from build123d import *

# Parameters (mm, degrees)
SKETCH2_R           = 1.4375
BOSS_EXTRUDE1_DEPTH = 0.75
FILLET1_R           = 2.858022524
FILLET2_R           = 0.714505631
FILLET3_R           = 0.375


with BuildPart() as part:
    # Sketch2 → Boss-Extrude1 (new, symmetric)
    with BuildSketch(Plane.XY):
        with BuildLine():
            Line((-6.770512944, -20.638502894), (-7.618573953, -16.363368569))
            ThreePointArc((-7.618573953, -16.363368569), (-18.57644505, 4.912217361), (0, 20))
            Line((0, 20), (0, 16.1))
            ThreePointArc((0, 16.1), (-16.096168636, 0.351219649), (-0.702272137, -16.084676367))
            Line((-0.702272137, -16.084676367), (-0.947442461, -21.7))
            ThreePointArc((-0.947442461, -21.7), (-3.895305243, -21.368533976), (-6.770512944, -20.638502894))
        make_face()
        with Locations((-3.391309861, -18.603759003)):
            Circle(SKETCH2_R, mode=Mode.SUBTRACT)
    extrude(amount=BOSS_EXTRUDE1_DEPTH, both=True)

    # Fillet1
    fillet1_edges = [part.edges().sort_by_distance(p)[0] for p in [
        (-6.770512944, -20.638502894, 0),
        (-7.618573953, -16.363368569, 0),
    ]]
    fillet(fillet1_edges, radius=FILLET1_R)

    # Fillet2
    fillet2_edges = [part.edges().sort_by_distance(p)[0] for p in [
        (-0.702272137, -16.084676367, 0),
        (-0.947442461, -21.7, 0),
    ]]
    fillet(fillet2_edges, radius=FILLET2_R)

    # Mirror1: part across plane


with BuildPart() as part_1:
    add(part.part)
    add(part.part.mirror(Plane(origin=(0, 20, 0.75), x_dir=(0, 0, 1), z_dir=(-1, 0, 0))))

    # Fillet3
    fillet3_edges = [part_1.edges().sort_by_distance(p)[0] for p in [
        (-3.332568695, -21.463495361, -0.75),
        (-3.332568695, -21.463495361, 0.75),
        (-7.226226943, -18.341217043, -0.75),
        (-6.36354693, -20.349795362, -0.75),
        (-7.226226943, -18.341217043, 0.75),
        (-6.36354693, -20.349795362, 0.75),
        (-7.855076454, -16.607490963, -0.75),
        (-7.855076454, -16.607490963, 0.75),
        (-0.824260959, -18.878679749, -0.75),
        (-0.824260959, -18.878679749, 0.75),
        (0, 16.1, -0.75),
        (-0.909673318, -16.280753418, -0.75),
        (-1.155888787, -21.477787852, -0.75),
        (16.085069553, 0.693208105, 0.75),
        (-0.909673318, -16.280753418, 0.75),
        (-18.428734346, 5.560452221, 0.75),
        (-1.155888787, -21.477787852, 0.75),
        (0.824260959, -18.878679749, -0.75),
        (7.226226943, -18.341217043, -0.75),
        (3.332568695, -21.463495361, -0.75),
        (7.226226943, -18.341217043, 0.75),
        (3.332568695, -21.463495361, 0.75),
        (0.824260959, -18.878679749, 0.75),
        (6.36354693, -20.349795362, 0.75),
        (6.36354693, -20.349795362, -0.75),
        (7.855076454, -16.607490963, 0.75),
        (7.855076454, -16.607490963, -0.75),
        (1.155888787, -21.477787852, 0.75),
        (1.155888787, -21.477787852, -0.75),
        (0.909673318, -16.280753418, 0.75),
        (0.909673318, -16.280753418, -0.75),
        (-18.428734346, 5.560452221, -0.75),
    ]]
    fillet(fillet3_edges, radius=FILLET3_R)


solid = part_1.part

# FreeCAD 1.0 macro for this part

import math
import FreeCAD as App
import Part
import Sketcher
from FreeCAD import Vector
Q = App.Units.Quantity


def edges_at(feature, points):
    """Names of the edges that pass closest to the given points."""
    edges = feature.Shape.Edges
    near = lambda p: min(range(len(edges)), key=lambda i: edges[i].distToShape(Part.Vertex(*p))[0])
    return sorted({f"Edge{near(p) + 1}" for p in points})

doc = App.newDocument("Part")
body = doc.addObject("PartDesign::Body", "Body")

# Sketch on XY plane
sketch1 = body.newObject("Sketcher::SketchObject", "Sketch")
sketch1.AttachmentSupport = (doc.getObject("XY_Plane"), [""])
sketch1.MapMode = "FlatFace"
sketch1.addGeometry(Part.LineSegment(Vector(-7.6, -16.4, 0), Vector(-6.8, -20.6, 0)), False)
sketch1.addGeometry(Part.ArcOfCircle(Part.Circle(Vector(0, 0, 0), Vector(0, 0, 1), 21.7), math.radians(-108.16), math.radians(-92.5)), False)
sketch1.addGeometry(Part.LineSegment(Vector(-0.9, -21.7, 0), Vector(-0.7, -16.1, 0)), False)
sketch1.addGeometry(Part.ArcOfCircle(Part.Circle(Vector(0, 0, 0), Vector(0, 0, 1), 16.1), math.radians(90), math.radians(267)), False)
sketch1.addGeometry(Part.LineSegment(Vector(0, 16.1, 0), Vector(0, 20, 0)), False)
sketch1.addGeometry(Part.ArcOfCircle(Part.Circle(Vector(0, 1, 0), Vector(0, 0, 1), 19), math.radians(90), math.radians(246)), False)
sketch1.addGeometry(Part.Circle(Vector(-3.4, -18.6, 0), Vector(0, 0, 1), 1.4), False)
sketch1.addConstraint(Sketcher.Constraint("Coincident", 0, 2, 1, 1))
sketch1.addConstraint(Sketcher.Constraint("Coincident", 1, 2, 2, 1))
sketch1.addConstraint(Sketcher.Constraint("Coincident", 2, 2, 3, 2))
sketch1.addConstraint(Sketcher.Constraint("Coincident", 3, 1, 4, 1))
sketch1.addConstraint(Sketcher.Constraint("Coincident", 4, 2, 5, 1))
sketch1.addConstraint(Sketcher.Constraint("Coincident", 5, 2, 0, 1))
sketch1.addConstraint(Sketcher.Constraint("Vertical", 4))
sketch1.addConstraint(Sketcher.Constraint("Coincident", 1, 3, -1, 1))
sketch1.addConstraint(Sketcher.Constraint("Coincident", 3, 3, -1, 1))
sketch1.addConstraint(Sketcher.Constraint("PointOnObject", 5, 3, -2))
sketch1.addConstraint(Sketcher.Constraint("PointOnObject", 3, 1, -2))
sketch1.addConstraint(Sketcher.Constraint("Radius", 3, Q("16.1 mm")))
sketch1.addConstraint(Sketcher.Constraint("Diameter", 6, Q("2.875 mm")))
sketch1.addConstraint(Sketcher.Constraint("DistanceY", 4, 1, 4, 2, Q("3.9 mm")))
sketch1.addConstraint(Sketcher.Constraint("Angle", 2, Q("87.5 deg")))
sketch1.addConstraint(Sketcher.Constraint("DistanceY", 1, 2, -1, 1, Q("21.7 mm")))
sketch1.addConstraint(Sketcher.Constraint("Radius", 1, Q("21.720673 mm")))
sketch1.addConstraint(Sketcher.Constraint("Radius", 5, Q("18.979777 mm")))
sketch1.addConstraint(Sketcher.Constraint("DistanceX", 5, 2, 2, 2, Q("6.916302 mm")))
sketch1.addConstraint(Sketcher.Constraint("DistanceX", 6, 3, -1, 1, Q("3.39131 mm")))
sketch1.addConstraint(Sketcher.Constraint("DistanceY", 6, 3, -1, 1, Q("18.603759 mm")))
sketch1.addConstraint(Sketcher.Constraint("DistanceX", 0, 2, 1, 2, Q("5.82307 mm")))
pad1 = body.newObject("PartDesign::Pad", "Pad")
pad1.Profile = sketch1
pad1.Length = 1.5
pad1.Midplane = True
doc.recompute()

fillet = body.newObject("PartDesign::Fillet", "Fillet")
fillet.Base = (pad1, edges_at(pad1, [(-6.771, -20.639, 0), (-7.619, -16.363, 0)]))
fillet.Radius = 2.858023
doc.recompute()

fillet2 = body.newObject("PartDesign::Fillet", "Fillet001")
fillet2.Base = (fillet, edges_at(fillet, [(-0.702, -16.085, 0), (-0.947, -21.7, 0)]))
fillet2.Radius = 0.714506
body2 = doc.addObject("PartDesign::Body", "Body001")
doc.recompute()

body2.BaseFeature = body
doc.recompute()

mirroring = doc.addObject("Part::Mirroring", "Mirroring")
mirroring.Source = body
mirroring.Base = Vector(0, 20, 0.75)
mirroring.Normal = Vector(-1, 0, 0)
body3 = doc.addObject("PartDesign::Body", "Body002")
body3.BaseFeature = mirroring
boolean = body2.newObject("PartDesign::Boolean", "Boolean")
boolean.Type = "Fuse"
boolean.addObjects([body3])
doc.recompute()

fillet3 = body2.newObject("PartDesign::Fillet", "Fillet002")
fillet3.Base = (boolean, edges_at(boolean, [
    (-3.333, -21.463, -0.75),
    (-3.333, -21.463, 0.75),
    (-7.226, -18.341, -0.75),
    (-6.364, -20.35, -0.75),
    (-7.226, -18.341, 0.75),
    (-6.364, -20.35, 0.75),
    (-7.855, -16.607, -0.75),
    (-7.855, -16.607, 0.75),
    (-0.824, -18.879, -0.75),
    (-0.824, -18.879, 0.75),
    (-16.085, 0.693, -0.75),
    (-0.91, -16.281, -0.75),
    (-1.156, -21.478, -0.75),
    (16.085, 0.693, 0.75),
    (-0.91, -16.281, 0.75),
    (-18.429, 5.56, 0.75),
    (-1.156, -21.478, 0.75),
    (0.824, -18.879, -0.75),
    (7.226, -18.341, -0.75),
    (3.333, -21.463, -0.75),
    (7.226, -18.341, 0.75),
    (3.333, -21.463, 0.75),
    (0.824, -18.879, 0.75),
    (6.364, -20.35, 0.75),
    (6.364, -20.35, -0.75),
    (7.855, -16.607, 0.75),
    (7.855, -16.607, -0.75),
    (1.156, -21.478, 0.75),
    (1.156, -21.478, -0.75),
    (0.91, -16.281, 0.75),
    (0.91, -16.281, -0.75),
    (-18.429, 5.56, -0.75),
]))
fillet3.Radius = 0.375
mirroring.Visibility = False

doc.recompute()
